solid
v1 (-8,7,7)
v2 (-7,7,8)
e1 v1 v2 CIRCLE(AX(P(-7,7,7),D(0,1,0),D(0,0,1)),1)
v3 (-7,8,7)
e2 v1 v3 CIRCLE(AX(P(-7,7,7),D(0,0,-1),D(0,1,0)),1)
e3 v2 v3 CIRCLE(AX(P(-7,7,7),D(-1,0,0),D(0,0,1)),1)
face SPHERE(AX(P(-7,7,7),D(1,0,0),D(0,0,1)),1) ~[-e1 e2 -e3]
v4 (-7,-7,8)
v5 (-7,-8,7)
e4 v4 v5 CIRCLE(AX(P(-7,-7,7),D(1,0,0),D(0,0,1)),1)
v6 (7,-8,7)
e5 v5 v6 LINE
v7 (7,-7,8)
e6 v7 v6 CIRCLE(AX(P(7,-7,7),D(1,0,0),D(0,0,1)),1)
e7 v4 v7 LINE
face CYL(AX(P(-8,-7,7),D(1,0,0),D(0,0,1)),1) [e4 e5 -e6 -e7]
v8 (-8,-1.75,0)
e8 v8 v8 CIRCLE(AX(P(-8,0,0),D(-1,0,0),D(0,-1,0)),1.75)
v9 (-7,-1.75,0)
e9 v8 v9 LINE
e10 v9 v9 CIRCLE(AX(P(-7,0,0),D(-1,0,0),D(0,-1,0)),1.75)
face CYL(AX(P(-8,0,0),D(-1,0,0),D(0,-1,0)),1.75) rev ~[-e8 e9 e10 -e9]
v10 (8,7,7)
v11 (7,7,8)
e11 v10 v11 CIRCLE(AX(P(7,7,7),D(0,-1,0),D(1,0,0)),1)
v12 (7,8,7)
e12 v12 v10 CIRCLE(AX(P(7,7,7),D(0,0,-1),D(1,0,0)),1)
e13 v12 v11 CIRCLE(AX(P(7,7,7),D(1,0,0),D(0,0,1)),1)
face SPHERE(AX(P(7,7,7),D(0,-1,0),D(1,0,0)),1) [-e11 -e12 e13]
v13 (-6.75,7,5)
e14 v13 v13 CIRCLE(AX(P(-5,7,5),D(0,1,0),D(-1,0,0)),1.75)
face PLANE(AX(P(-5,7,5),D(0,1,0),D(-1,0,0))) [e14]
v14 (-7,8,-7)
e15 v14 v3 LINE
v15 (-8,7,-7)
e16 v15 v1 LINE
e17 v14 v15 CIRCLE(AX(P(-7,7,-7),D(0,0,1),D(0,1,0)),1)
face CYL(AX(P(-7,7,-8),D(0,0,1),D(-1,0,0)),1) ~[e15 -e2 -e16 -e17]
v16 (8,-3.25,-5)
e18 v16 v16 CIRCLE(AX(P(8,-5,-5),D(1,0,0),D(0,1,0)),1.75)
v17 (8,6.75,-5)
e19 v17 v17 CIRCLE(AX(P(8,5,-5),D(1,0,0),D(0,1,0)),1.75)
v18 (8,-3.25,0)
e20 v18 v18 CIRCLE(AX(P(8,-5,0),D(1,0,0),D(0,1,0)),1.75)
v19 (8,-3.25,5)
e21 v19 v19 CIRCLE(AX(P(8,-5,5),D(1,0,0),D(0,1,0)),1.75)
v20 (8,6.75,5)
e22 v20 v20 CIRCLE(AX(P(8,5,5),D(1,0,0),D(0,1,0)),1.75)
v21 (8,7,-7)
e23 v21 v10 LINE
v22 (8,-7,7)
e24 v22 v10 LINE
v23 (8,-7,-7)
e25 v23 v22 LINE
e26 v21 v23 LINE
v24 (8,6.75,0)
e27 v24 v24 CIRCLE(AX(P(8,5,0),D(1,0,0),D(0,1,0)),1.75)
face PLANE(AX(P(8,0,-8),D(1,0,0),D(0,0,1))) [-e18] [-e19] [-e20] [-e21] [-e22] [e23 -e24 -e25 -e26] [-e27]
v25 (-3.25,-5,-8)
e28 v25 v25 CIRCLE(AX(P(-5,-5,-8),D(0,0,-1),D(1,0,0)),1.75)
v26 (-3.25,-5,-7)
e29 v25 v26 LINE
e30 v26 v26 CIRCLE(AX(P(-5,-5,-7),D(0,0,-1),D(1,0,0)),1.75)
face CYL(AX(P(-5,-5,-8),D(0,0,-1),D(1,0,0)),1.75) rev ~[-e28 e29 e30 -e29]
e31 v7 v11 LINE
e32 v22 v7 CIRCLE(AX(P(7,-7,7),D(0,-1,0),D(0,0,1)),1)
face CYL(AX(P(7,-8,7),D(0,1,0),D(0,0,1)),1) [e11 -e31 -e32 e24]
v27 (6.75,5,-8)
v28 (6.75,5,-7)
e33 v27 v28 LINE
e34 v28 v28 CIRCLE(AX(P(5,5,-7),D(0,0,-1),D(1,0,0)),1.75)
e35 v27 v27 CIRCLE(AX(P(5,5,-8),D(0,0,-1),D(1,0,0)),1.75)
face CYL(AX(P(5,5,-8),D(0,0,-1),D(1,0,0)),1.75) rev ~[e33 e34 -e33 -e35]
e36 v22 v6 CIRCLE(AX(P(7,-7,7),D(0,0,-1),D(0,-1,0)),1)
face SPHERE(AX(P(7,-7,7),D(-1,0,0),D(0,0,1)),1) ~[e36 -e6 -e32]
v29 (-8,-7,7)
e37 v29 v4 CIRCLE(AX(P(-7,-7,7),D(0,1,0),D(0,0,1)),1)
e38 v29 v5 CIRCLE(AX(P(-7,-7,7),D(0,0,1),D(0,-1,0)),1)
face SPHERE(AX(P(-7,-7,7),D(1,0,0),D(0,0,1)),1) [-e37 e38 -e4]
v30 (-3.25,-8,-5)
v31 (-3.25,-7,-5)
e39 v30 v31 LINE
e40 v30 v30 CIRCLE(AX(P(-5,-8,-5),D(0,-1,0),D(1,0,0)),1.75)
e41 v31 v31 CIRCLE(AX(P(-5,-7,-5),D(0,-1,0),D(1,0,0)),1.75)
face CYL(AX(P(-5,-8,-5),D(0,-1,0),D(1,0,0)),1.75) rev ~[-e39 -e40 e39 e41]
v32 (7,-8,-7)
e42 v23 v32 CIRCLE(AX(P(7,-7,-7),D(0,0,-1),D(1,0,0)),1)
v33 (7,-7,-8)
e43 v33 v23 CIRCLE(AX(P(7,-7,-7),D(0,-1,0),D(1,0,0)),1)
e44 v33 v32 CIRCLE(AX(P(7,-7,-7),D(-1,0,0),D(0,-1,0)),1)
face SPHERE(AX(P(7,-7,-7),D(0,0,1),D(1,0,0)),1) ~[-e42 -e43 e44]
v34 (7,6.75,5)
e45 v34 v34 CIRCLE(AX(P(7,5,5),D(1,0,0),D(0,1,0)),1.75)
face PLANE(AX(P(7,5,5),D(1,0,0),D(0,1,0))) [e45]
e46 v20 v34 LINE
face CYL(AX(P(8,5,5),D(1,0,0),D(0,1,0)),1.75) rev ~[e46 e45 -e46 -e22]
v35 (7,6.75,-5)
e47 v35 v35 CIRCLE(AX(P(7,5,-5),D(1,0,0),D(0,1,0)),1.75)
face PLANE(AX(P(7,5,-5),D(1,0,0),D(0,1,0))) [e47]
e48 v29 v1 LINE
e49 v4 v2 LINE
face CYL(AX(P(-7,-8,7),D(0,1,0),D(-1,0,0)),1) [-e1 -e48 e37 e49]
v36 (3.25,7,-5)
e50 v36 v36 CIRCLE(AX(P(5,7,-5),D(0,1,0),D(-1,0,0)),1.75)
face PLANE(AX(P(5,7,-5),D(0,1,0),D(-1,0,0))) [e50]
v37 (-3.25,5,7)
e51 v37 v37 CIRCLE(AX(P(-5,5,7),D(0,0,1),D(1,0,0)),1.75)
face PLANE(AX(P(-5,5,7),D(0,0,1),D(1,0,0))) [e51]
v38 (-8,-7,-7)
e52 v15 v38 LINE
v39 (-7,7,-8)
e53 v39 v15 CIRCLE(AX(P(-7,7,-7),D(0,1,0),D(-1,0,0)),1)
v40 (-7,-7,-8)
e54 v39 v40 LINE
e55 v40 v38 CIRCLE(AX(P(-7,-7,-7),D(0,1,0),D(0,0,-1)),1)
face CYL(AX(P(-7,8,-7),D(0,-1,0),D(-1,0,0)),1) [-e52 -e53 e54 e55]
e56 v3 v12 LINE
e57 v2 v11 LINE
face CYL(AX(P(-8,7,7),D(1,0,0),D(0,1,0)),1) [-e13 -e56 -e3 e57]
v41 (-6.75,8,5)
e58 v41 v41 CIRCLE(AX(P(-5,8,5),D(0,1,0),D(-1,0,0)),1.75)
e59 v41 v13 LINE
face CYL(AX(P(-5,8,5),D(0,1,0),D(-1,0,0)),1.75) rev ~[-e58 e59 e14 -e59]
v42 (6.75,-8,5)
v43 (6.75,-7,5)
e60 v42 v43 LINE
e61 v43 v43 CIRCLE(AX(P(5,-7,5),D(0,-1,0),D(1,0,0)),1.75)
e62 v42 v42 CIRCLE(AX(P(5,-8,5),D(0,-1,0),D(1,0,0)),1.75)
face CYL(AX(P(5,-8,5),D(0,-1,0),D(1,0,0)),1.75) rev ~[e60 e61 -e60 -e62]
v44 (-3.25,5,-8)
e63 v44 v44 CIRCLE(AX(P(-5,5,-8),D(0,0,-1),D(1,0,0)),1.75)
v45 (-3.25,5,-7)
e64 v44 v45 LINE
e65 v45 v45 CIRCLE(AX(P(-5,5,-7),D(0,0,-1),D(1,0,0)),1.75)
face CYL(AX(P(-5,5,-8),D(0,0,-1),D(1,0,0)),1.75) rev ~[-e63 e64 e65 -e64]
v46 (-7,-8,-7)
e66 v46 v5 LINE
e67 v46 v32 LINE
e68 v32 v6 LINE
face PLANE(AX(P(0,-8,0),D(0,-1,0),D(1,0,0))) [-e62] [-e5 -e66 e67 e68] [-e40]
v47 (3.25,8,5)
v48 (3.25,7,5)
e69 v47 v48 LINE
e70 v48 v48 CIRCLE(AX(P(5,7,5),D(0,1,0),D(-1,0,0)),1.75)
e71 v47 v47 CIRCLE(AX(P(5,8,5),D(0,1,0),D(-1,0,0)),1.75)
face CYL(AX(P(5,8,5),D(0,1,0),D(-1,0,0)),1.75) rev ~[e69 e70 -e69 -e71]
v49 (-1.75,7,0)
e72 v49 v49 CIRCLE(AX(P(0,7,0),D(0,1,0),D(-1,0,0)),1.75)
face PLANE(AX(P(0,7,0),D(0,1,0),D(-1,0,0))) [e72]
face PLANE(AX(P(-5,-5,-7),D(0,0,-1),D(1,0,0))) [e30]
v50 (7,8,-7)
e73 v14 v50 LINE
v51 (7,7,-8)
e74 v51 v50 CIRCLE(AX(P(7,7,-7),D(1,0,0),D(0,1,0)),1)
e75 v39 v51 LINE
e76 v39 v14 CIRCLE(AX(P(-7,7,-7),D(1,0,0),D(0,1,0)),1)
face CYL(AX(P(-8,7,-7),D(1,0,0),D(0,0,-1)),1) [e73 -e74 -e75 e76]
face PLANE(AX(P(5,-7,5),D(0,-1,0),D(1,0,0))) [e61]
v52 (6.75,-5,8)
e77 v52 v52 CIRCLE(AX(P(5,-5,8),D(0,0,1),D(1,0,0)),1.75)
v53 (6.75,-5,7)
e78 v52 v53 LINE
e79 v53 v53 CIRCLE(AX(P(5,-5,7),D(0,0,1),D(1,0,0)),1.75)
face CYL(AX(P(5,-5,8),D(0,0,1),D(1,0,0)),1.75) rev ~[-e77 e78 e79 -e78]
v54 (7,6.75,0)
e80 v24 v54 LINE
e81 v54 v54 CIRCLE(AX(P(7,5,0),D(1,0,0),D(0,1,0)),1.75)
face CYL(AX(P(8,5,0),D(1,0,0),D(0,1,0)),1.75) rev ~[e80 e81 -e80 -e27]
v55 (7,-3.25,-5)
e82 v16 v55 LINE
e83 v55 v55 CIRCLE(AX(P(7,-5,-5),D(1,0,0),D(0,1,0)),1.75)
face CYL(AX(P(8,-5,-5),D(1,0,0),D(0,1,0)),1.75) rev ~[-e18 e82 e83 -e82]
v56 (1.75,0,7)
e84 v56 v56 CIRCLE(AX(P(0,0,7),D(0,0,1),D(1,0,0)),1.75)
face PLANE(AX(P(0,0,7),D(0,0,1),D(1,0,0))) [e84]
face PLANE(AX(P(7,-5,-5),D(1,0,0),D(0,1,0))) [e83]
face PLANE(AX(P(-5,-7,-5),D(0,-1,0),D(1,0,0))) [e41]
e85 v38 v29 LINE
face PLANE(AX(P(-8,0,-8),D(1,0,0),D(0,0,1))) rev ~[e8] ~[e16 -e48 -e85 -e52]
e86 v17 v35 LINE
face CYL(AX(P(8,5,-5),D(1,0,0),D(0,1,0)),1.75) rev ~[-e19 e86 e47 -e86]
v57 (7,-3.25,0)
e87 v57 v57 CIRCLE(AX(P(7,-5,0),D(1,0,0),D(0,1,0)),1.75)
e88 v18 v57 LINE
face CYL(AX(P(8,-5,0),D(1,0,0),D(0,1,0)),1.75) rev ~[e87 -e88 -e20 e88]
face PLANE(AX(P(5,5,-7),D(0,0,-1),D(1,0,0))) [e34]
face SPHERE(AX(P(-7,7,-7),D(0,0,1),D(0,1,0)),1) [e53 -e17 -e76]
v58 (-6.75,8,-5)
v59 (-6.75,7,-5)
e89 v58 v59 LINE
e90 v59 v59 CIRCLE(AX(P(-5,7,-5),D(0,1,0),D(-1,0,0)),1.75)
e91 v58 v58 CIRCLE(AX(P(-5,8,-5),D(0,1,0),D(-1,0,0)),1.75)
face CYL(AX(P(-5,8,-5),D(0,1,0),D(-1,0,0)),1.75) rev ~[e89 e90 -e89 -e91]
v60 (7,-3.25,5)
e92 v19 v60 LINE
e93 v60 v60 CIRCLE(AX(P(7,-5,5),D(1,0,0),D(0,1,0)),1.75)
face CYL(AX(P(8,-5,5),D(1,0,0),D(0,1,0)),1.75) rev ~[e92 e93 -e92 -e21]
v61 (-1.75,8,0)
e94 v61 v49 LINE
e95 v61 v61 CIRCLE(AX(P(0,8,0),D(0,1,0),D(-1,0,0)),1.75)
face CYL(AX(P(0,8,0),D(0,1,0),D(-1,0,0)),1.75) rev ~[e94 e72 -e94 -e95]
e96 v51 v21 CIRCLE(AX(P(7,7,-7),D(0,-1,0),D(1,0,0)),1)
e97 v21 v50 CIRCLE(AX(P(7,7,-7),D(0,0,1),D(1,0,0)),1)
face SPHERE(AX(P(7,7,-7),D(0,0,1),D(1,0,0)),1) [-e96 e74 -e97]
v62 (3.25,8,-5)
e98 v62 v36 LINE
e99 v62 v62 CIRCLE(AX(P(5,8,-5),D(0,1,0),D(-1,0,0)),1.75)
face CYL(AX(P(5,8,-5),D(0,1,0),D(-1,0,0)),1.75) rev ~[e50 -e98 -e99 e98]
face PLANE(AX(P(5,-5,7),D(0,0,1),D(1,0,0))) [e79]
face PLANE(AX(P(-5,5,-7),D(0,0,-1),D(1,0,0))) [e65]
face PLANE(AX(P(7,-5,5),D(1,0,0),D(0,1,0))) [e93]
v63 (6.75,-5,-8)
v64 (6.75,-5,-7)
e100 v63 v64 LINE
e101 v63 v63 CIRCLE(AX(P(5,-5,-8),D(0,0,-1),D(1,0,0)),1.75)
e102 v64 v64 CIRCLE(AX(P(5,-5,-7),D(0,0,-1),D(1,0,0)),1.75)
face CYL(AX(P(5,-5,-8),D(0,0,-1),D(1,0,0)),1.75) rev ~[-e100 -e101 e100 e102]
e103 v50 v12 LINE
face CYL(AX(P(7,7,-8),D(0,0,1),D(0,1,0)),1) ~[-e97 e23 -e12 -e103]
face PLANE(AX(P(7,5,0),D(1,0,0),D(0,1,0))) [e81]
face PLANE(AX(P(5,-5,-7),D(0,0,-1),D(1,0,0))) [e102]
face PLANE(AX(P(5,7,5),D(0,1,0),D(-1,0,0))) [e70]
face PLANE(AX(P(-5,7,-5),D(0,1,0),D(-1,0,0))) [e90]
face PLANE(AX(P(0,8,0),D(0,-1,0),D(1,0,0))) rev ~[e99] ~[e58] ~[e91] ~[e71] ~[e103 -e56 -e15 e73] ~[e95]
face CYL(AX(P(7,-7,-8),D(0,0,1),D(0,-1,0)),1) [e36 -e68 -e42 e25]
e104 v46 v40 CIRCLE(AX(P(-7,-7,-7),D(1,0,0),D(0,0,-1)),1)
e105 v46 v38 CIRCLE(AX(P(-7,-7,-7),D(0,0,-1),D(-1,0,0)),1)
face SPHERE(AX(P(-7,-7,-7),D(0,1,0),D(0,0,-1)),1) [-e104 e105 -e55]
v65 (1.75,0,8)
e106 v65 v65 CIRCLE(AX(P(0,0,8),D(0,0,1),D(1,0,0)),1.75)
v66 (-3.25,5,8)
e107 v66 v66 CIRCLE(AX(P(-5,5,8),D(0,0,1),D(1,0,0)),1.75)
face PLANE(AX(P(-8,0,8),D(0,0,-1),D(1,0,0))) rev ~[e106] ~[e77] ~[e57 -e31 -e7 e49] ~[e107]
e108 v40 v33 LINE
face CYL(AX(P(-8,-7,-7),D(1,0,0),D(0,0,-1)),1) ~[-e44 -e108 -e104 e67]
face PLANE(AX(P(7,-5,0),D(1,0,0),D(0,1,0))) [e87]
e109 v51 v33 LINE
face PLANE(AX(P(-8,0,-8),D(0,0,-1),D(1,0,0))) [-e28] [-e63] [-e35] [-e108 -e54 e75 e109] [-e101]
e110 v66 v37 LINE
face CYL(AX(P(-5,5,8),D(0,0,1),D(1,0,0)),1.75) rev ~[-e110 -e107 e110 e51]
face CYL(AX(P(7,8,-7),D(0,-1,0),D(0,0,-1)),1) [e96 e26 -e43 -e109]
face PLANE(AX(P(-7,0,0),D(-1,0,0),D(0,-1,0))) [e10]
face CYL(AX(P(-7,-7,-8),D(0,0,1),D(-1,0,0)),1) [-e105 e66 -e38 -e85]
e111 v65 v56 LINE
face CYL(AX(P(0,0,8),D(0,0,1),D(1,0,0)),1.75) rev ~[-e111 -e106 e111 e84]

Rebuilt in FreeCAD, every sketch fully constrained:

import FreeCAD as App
import Part
import Sketcher
from FreeCAD import Vector


def edges_at(feature, points):
    """Names of the edges that pass closest to the given points."""
    edges = feature.Shape.Edges
    near = lambda p: min(range(len(edges)), key=lambda i: edges[i].distToShape(Part.Vertex(*p))[0])
    return sorted({f"Edge{near(p) + 1}" for p in points})


def add_polygon(sketch, points):
    """Adds a closed chain of lines whose ends are joined by coincident constraints."""
    first, n = sketch.GeometryCount, len(points)
    for a, b in zip(points, points[1:] + points[:1]):
        sketch.addGeometry(Part.LineSegment(App.Vector(*a, 0), App.Vector(*b, 0)), False)
    for i in range(n):
        sketch.addConstraint(Sketcher.Constraint("Coincident", first + i, 2, first + (i + 1) % n, 1))

doc = App.newDocument("Part")
body = doc.addObject("PartDesign::Body", "Body")

sketch1 = body.newObject("Sketcher::SketchObject", "Sketch")
sketch1.AttachmentSupport = (doc.getObject("XZ_Plane"), [""])
sketch1.MapMode = "FlatFace"
add_polygon(sketch1, [(-8, 8), (-8, -8), (8, -8), (8, 8)])
sketch1.addConstraint([
    Sketcher.Constraint("Vertical", 0),
    Sketcher.Constraint("Horizontal", 1),
    Sketcher.Constraint("Vertical", 2),
    Sketcher.Constraint("Horizontal", 3),
    Sketcher.Constraint("Symmetric", 0, 2, 2, 2, -1, 1),
    Sketcher.Constraint("Equal", 3, 0),
    Sketcher.Constraint("DistanceX", 1, 1, 1, 2, 16.0),
])
pad1 = body.newObject("PartDesign::Pad", "Pad")
pad1.Profile = sketch1
pad1.Length = 16
pad1.Midplane = True

sketch2 = body.newObject("Sketcher::SketchObject", "Sketch001")
sketch2.AttachmentSupport = (doc.getObject("XZ_Plane"), [""])
sketch2.MapMode = "FlatFace"
sketch2.AttachmentOffset = App.Placement(Vector(0, 0, 8), App.Rotation())
sketch2.addGeometry([
    Part.Circle(Vector(5, 5, 0), Vector(0, 0, 1), 1.8),
    Part.Circle(Vector(-5, -5, 0), Vector(0, 0, 1), 1.8),
], False)
sketch2.addConstraint([
    Sketcher.Constraint("Equal", 0, 1),
    Sketcher.Constraint("Symmetric", 0, 3, 1, 3, -1, 1),
    Sketcher.Constraint("Diameter", 0, 3.5),
    Sketcher.Constraint("DistanceX", -1, 1, 0, 3, 5.0),
    Sketcher.Constraint("DistanceY", -1, 1, 0, 3, 5.0),
])
pocket1 = body.newObject("PartDesign::Pocket", "Pocket")
pocket1.Profile = sketch2
pocket1.Length = 1

sketch3 = body.newObject("Sketcher::SketchObject", "Sketch002")
sketch3.AttachmentSupport = (doc.getObject("YZ_Plane"), [""])
sketch3.MapMode = "FlatFace"
sketch3.AttachmentOffset = App.Placement(Vector(0, 0, 8), App.Rotation())
sketch3.addGeometry([
    Part.Circle(Vector(-5, 5, 0), Vector(0, 0, 1), 1.8),
    Part.Circle(Vector(-5, 0, 0), Vector(0, 0, 1), 1.8),
    Part.Circle(Vector(-5, -5, 0), Vector(0, 0, 1), 1.8),
    Part.Circle(Vector(5, 5, 0), Vector(0, 0, 1), 1.8),
    Part.Circle(Vector(5, 0, 0), Vector(0, 0, 1), 1.8),
    Part.Circle(Vector(5, -5, 0), Vector(0, 0, 1), 1.8),
], False)
sketch3.addConstraint([
    Sketcher.Constraint("Equal", 0, 1),
    Sketcher.Constraint("Equal", 1, 2),
    Sketcher.Constraint("Equal", 2, 3),
    Sketcher.Constraint("Equal", 3, 4),
    Sketcher.Constraint("Equal", 4, 5),
    Sketcher.Constraint("Symmetric", 2, 3, 3, 3, -1, 1),
    Sketcher.Constraint("Symmetric", 1, 3, 4, 3, -1, 1),
    Sketcher.Constraint("Symmetric", 0, 3, 5, 3, -1, 1),
    Sketcher.Constraint("Symmetric", 0, 3, 3, 3, -2),
    Sketcher.Constraint("PointOnObject", 1, 3, -1),
    Sketcher.Constraint("Vertical", 0, 3, 1, 3),
    Sketcher.Constraint("Diameter", 0, 3.5),
    Sketcher.Constraint("DistanceX", 0, 3, -1, 1, 5.0),
    Sketcher.Constraint("DistanceY", -1, 1, 0, 3, 5.0),
])
pocket2 = body.newObject("PartDesign::Pocket", "Pocket001")
pocket2.Profile = sketch3
pocket2.Length = 1

sketch4 = body.newObject("Sketcher::SketchObject", "Sketch003")
sketch4.AttachmentSupport = (doc.getObject("XY_Plane"), [""])
sketch4.MapMode = "FlatFace"
sketch4.AttachmentOffset = App.Placement(Vector(0, 0, 8), App.Rotation())
sketch4.addGeometry([
    Part.Circle(Vector(-5, 5, 0), Vector(0, 0, 1), 1.8),
    Part.Circle(Vector(5, -5, 0), Vector(0, 0, 1), 1.8),
    Part.Circle(Vector(0, 0, 0), Vector(0, 0, 1), 1.8),
], False)
sketch4.addConstraint([
    Sketcher.Constraint("Coincident", 2, 3, -1, 1),
    Sketcher.Constraint("Equal", 0, 1),
    Sketcher.Constraint("Equal", 1, 2),
    Sketcher.Constraint("Symmetric", 0, 3, 1, 3, -1, 1),
    Sketcher.Constraint("Diameter", 0, 3.5),
    Sketcher.Constraint("DistanceX", 0, 3, -1, 1, 5.0),
    Sketcher.Constraint("DistanceY", -1, 1, 0, 3, 5.0),
])
pocket3 = body.newObject("PartDesign::Pocket", "Pocket002")
pocket3.Profile = sketch4
pocket3.Length = 1
doc.recompute()

fillet = body.newObject("PartDesign::Fillet", "Fillet")
fillet.Base = (pocket3, edges_at(pocket3, [
    (0, -8, 8),
    (8, 0, 8),
    (8, -8, 0),
    (8, 8, 0),
    (8, 0, -8),
    (0, 8, 8),
    (-8, 0, 8),
    (-8, 8, 0),
    (0, 8, -8),
    (-8, 0, -8),
    (0, -8, -8),
    (-8, -8, 0),
]))
fillet.Radius = 1

sketch5 = body.newObject("Sketcher::SketchObject", "Sketch004")
sketch5.AttachmentSupport = (doc.getObject("YZ_Plane"), [""])
sketch5.MapMode = "FlatFace"
sketch5.AttachmentOffset = App.Placement(Vector(0, 0, -8), App.Rotation())
sketch5.addGeometry(Part.Circle(Vector(0, 0, 0), Vector(0, 0, 1), 1.8), False)
sketch5.addConstraint([
    Sketcher.Constraint("Coincident", 0, 3, -1, 1),
    Sketcher.Constraint("Diameter", 0, 3.5),
])
pocket4 = body.newObject("PartDesign::Pocket", "Pocket003")
pocket4.Profile = sketch5
pocket4.Length = 1
pocket4.Reversed = True

sketch6 = body.newObject("Sketcher::SketchObject", "Sketch005")
sketch6.AttachmentSupport = (doc.getObject("XZ_Plane"), [""])
sketch6.MapMode = "FlatFace"
sketch6.AttachmentOffset = App.Placement(Vector(0, 0, -8), App.Rotation())
sketch6.addGeometry([
    Part.Circle(Vector(5, 5, 0), Vector(0, 0, 1), 1.8),
    Part.Circle(Vector(5, -5, 0), Vector(0, 0, 1), 1.8),
    Part.Circle(Vector(-5, 5, 0), Vector(0, 0, 1), 1.8),
    Part.Circle(Vector(-5, -5, 0), Vector(0, 0, 1), 1.8),
    Part.Circle(Vector(0, 0, 0), Vector(0, 0, 1), 1.8),
], False)
sketch6.addConstraint([
    Sketcher.Constraint("Coincident", 4, 3, -1, 1),
    Sketcher.Constraint("Equal", 0, 1),
    Sketcher.Constraint("Equal", 1, 2),
    Sketcher.Constraint("Equal", 2, 3),
    Sketcher.Constraint("Equal", 3, 4),
    Sketcher.Constraint("Symmetric", 1, 3, 2, 3, -1, 1),
    Sketcher.Constraint("Symmetric", 0, 3, 3, 3, -1, 1),
    Sketcher.Constraint("Symmetric", 0, 3, 2, 3, -2),
    Sketcher.Constraint("Diameter", 0, 3.5),
    Sketcher.Constraint("DistanceX", -1, 1, 0, 3, 5.0),
    Sketcher.Constraint("DistanceY", -1, 1, 0, 3, 5.0),
])
pocket5 = body.newObject("PartDesign::Pocket", "Pocket004")
pocket5.Profile = sketch6
pocket5.Length = 1
pocket5.Reversed = True

sketch7 = body.newObject("Sketcher::SketchObject", "Sketch006")
sketch7.AttachmentSupport = (doc.getObject("XY_Plane"), [""])
sketch7.MapMode = "FlatFace"
sketch7.AttachmentOffset = App.Placement(Vector(0, 0, -8), App.Rotation())
sketch7.addGeometry([
    Part.Circle(Vector(-5, -5, 0), Vector(0, 0, 1), 1.8),
    Part.Circle(Vector(5, -5, 0), Vector(0, 0, 1), 1.8),
    Part.Circle(Vector(5, 5, 0), Vector(0, 0, 1), 1.8),
    Part.Circle(Vector(-5, 5, 0), Vector(0, 0, 1), 1.8),
], False)
sketch7.addConstraint([
    Sketcher.Constraint("Equal", 0, 1),
    Sketcher.Constraint("Equal", 1, 2),
    Sketcher.Constraint("Equal", 2, 3),
    Sketcher.Constraint("Symmetric", 0, 3, 2, 3, -1, 1),
    Sketcher.Constraint("Symmetric", 1, 3, 3, 3, -1, 1),
    Sketcher.Constraint("Symmetric", 0, 3, 1, 3, -2),
    Sketcher.Constraint("Diameter", 0, 3.5),
    Sketcher.Constraint("DistanceX", 0, 3, -1, 1, 5.0),
    Sketcher.Constraint("DistanceY", 0, 3, -1, 1, 5.0),
])
pocket6 = body.newObject("PartDesign::Pocket", "Pocket005")
pocket6.Profile = sketch7
pocket6.Length = 1
pocket6.Reversed = True

doc.recompute()
